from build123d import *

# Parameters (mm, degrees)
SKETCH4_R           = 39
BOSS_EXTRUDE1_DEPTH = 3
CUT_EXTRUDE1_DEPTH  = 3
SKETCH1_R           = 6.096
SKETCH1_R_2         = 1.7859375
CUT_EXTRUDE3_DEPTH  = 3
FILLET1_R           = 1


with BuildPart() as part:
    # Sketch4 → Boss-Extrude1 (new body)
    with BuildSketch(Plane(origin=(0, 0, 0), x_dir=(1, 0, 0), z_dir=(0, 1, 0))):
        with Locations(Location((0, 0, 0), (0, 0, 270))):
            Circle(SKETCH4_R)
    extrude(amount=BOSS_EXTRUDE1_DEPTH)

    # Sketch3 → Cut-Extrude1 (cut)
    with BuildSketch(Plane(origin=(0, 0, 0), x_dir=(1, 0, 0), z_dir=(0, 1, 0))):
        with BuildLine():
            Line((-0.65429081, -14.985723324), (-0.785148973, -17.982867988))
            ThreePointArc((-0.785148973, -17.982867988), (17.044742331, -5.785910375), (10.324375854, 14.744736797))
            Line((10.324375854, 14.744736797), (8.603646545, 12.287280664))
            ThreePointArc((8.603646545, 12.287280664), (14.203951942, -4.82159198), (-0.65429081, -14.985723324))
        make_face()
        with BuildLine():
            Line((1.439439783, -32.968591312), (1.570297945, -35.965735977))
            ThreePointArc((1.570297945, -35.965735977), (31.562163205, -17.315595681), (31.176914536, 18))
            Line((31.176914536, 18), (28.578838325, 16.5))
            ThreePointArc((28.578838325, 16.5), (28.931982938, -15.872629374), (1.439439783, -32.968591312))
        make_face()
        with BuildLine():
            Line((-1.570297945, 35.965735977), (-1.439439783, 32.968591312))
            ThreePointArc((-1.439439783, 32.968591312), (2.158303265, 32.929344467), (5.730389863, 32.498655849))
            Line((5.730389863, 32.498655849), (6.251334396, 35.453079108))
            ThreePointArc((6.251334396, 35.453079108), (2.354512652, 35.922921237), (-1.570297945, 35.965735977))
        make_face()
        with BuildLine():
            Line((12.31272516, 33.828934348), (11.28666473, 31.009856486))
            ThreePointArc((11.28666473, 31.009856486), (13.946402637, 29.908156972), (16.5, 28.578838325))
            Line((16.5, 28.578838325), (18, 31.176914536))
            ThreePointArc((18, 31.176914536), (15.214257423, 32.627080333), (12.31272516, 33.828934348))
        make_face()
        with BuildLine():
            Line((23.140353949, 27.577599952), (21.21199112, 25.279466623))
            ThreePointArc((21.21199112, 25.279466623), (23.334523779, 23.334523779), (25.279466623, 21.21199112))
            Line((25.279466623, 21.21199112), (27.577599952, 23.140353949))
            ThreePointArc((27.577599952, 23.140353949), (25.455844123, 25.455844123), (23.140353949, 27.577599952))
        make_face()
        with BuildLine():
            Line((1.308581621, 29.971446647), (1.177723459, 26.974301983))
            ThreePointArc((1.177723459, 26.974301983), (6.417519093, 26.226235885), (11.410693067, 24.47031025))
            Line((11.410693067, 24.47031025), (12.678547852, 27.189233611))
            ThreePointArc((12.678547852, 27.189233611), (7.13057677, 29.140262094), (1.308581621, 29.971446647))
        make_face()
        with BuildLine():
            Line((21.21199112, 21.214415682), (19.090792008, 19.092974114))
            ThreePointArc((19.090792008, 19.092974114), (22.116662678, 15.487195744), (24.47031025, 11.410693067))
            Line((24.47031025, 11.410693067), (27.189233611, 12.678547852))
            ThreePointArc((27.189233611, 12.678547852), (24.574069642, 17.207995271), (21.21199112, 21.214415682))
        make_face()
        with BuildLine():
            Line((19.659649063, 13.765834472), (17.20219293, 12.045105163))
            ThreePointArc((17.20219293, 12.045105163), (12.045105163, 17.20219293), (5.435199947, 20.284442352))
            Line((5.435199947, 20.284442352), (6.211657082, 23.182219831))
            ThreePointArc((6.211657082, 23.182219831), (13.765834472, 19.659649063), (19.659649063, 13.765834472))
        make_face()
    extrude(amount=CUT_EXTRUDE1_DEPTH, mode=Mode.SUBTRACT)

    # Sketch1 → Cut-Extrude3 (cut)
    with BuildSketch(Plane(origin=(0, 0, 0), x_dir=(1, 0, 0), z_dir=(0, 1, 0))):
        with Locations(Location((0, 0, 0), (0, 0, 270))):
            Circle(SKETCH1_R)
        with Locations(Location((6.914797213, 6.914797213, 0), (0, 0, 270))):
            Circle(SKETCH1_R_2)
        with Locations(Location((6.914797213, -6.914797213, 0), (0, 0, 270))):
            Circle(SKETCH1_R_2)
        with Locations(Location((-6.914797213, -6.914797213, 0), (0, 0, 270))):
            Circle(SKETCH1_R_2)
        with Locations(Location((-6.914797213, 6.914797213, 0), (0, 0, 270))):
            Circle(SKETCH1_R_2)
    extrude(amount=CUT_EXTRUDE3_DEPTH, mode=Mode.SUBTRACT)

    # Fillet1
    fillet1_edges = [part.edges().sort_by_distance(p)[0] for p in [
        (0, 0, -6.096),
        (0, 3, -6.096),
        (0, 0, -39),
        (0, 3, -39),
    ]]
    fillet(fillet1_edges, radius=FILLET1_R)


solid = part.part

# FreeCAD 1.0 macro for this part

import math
import FreeCAD as App
import Part
import Sketcher
Q = App.Units.Quantity


def edges_at(feature, points):
    """Names of the edges that pass closest to the given points."""
    edges = feature.Shape.Edges
    near = lambda p: min(range(len(edges)), key=lambda i: edges[i].distToShape(Part.Vertex(*p))[0])
    return sorted({f"Edge{near(p) + 1}" for p in points})

doc = App.newDocument("Part")
params = doc.addObject("Spreadsheet::Sheet", "Params")
for row, (alias, value) in enumerate([
    ("sketch1_diameter", "78 mm"),
    ("pad1_length", "3 mm"),
    ("sketch2_radius", "18 mm"),
    ("sketch2_radius2", "15 mm"),
    ("sketch2_radius3", "36 mm"),
    ("sketch2_radius4", "27 mm"),
    ("sketch2_radius5", "24 mm"),
    ("pocket1_length", "3 mm"),
    ("pocket2_length", "3 mm"),
    ("fillet_radius", "1 mm"),
], start=1):
    params.set(f"A{row}", alias)
    params.set(f"B{row}", "=" + value)
    params.setAlias(f"B{row}", alias)

body = doc.addObject("PartDesign::Body", "Body")

sketch1 = doc.addObject("Sketcher::SketchObject", "Sketch")
body.addObject(sketch1)
sketch1.AttachmentSupport = (doc.XZ_Plane, [""])
sketch1.MapMode = "FlatFace"
sketch1.addGeometry(Part.Circle(App.Vector(0, 0, 0), App.Vector(0, 0, 1), 39), False)
sketch1.addConstraint(Sketcher.Constraint("Coincident", 0, 3, -1, 1))
sketch1.addConstraint(Sketcher.Constraint("Diameter", 0, 78.0))
sketch1.setExpression("Constraints[1]", "Params.sketch1_diameter")
pad1 = doc.addObject("PartDesign::Pad", "Pad")
body.addObject(pad1)
pad1.Profile = sketch1
pad1.setExpression("Length", "Params.pad1_length")
pad1.Reversed = True

sketch2 = doc.addObject("Sketcher::SketchObject", "Sketch001")
body.addObject(sketch2)
sketch2.AttachmentSupport = (doc.XZ_Plane, [""])
sketch2.MapMode = "FlatFace"
sketch2.addGeometry(Part.LineSegment(App.Vector(-0.7, 15, 0), App.Vector(-0.8, 18, 0)), False)
sketch2.addGeometry(Part.ArcOfCircle(Part.Circle(App.Vector(0, 0, 0), App.Vector(0, 0, 1), 18), math.radians(-55), math.radians(93)), False)
sketch2.addGeometry(Part.LineSegment(App.Vector(10.3, -14.7, 0), App.Vector(8.6, -12.3, 0)), False)
sketch2.addGeometry(Part.ArcOfCircle(Part.Circle(App.Vector(0, 0, 0), App.Vector(0, 0, 1), 15), math.radians(-55), math.radians(92)), False)
sketch2.addGeometry(Part.LineSegment(App.Vector(1.4, 33, 0), App.Vector(1.6, 36, 0)), False)
sketch2.addGeometry(Part.ArcOfCircle(Part.Circle(App.Vector(0, 0, 0), App.Vector(0, 0, 1), 36), math.radians(-30), math.radians(87)), False)
sketch2.addGeometry(Part.LineSegment(App.Vector(31.2, -18, 0), App.Vector(28.6, -16.5, 0)), False)
sketch2.addGeometry(Part.ArcOfCircle(Part.Circle(App.Vector(0, 0, 0), App.Vector(0, 0, 1), 33), math.radians(-30), math.radians(87)), False)
sketch2.addGeometry(Part.LineSegment(App.Vector(-1.6, -36, 0), App.Vector(-1.4, -33, 0)), False)
sketch2.addGeometry(Part.ArcOfCircle(Part.Circle(App.Vector(0, 0, 0), App.Vector(0, 0, 1), 33), math.radians(-92.5), math.radians(-80)), False)
sketch2.addGeometry(Part.LineSegment(App.Vector(5.7, -32.5, 0), App.Vector(6.3, -35.5, 0)), False)
sketch2.addGeometry(Part.ArcOfCircle(Part.Circle(App.Vector(0, 0, 0), App.Vector(0, 0, 1), 36), math.radians(-92.5), math.radians(-80)), False)
sketch2.addGeometry(Part.LineSegment(App.Vector(12.3, -33.8, 0), App.Vector(11.3, -31, 0)), False)
sketch2.addGeometry(Part.ArcOfCircle(Part.Circle(App.Vector(0, 0, 0), App.Vector(0, 0, 1), 33), math.radians(-70), math.radians(-60)), False)
sketch2.addGeometry(Part.LineSegment(App.Vector(16.5, -28.6, 0), App.Vector(18, -31.2, 0)), False)
sketch2.addGeometry(Part.ArcOfCircle(Part.Circle(App.Vector(0, 0, 0), App.Vector(0, 0, 1), 36), math.radians(-70), math.radians(-60)), False)
sketch2.addGeometry(Part.LineSegment(App.Vector(23.1, -27.6, 0), App.Vector(21.2, -25.3, 0)), False)
sketch2.addGeometry(Part.ArcOfCircle(Part.Circle(App.Vector(0, 0, 0), App.Vector(0, 0, 1), 33), math.radians(-50), math.radians(-40)), False)
sketch2.addGeometry(Part.LineSegment(App.Vector(25.3, -21.2, 0), App.Vector(27.6, -23.1, 0)), False)
sketch2.addGeometry(Part.ArcOfCircle(Part.Circle(App.Vector(0, 0, 0), App.Vector(0, 0, 1), 36), math.radians(-50), math.radians(-40)), False)
sketch2.addGeometry(Part.LineSegment(App.Vector(1.3, -30, 0), App.Vector(1.2, -27, 0)), False)
sketch2.addGeometry(Part.ArcOfCircle(Part.Circle(App.Vector(0, 0, 0), App.Vector(0, 0, 1), 27), math.radians(-87), math.radians(-65)), False)
sketch2.addGeometry(Part.LineSegment(App.Vector(11.4, -24.5, 0), App.Vector(12.7, -27.2, 0)), False)
sketch2.addGeometry(Part.ArcOfCircle(Part.Circle(App.Vector(0, 0, 0), App.Vector(0, 0, 1), 30), math.radians(-87), math.radians(-65)), False)
sketch2.addGeometry(Part.LineSegment(App.Vector(21.2, -21.2, 0), App.Vector(19.1, -19.1, 0)), False)
sketch2.addGeometry(Part.ArcOfCircle(Part.Circle(App.Vector(0, 0, 0), App.Vector(0, 0, 1), 27), math.radians(-45), math.radians(-25)), False)
sketch2.addGeometry(Part.LineSegment(App.Vector(24.5, -11.4, 0), App.Vector(27.2, -12.7, 0)), False)
sketch2.addGeometry(Part.ArcOfCircle(Part.Circle(App.Vector(0, 0, 0), App.Vector(0, 0, 1), 30), math.radians(-45), math.radians(-25)), False)
sketch2.addGeometry(Part.LineSegment(App.Vector(17.2, -12, 0), App.Vector(19.7, -13.8, 0)), False)
sketch2.addGeometry(Part.ArcOfCircle(Part.Circle(App.Vector(0, 0, 0), App.Vector(0, 0, 1), 24), math.radians(-75), math.radians(-35)), False)
sketch2.addGeometry(Part.LineSegment(App.Vector(6.2, -23.2, 0), App.Vector(5.4, -20.3, 0)), False)
sketch2.addGeometry(Part.ArcOfCircle(Part.Circle(App.Vector(0, 0, 0), App.Vector(0, 0, 1), 21), math.radians(-75), math.radians(-35)), False)
sketch2.addConstraint(Sketcher.Constraint("Coincident", 0, 2, 1, 2))
sketch2.addConstraint(Sketcher.Constraint("Coincident", 1, 1, 2, 1))
sketch2.addConstraint(Sketcher.Constraint("Coincident", 2, 2, 3, 1))
sketch2.addConstraint(Sketcher.Constraint("Coincident", 3, 2, 0, 1))
sketch2.addConstraint(Sketcher.Constraint("Coincident", 4, 2, 5, 2))
sketch2.addConstraint(Sketcher.Constraint("Coincident", 5, 1, 6, 1))
sketch2.addConstraint(Sketcher.Constraint("Coincident", 6, 2, 7, 1))
sketch2.addConstraint(Sketcher.Constraint("Coincident", 7, 2, 4, 1))
sketch2.addConstraint(Sketcher.Constraint("Coincident", 8, 2, 9, 1))
sketch2.addConstraint(Sketcher.Constraint("Coincident", 9, 2, 10, 1))
sketch2.addConstraint(Sketcher.Constraint("Coincident", 10, 2, 11, 2))
sketch2.addConstraint(Sketcher.Constraint("Coincident", 11, 1, 8, 1))
sketch2.addConstraint(Sketcher.Constraint("Coincident", 12, 2, 13, 1))
sketch2.addConstraint(Sketcher.Constraint("Coincident", 13, 2, 14, 1))
sketch2.addConstraint(Sketcher.Constraint("Coincident", 14, 2, 15, 2))
sketch2.addConstraint(Sketcher.Constraint("Coincident", 15, 1, 12, 1))
sketch2.addConstraint(Sketcher.Constraint("Coincident", 16, 2, 17, 1))
sketch2.addConstraint(Sketcher.Constraint("Coincident", 17, 2, 18, 1))
sketch2.addConstraint(Sketcher.Constraint("Coincident", 18, 2, 19, 2))
sketch2.addConstraint(Sketcher.Constraint("Coincident", 19, 1, 16, 1))
sketch2.addConstraint(Sketcher.Constraint("Coincident", 20, 2, 21, 1))
sketch2.addConstraint(Sketcher.Constraint("Coincident", 21, 2, 22, 1))
sketch2.addConstraint(Sketcher.Constraint("Coincident", 22, 2, 23, 2))
sketch2.addConstraint(Sketcher.Constraint("Coincident", 23, 1, 20, 1))
sketch2.addConstraint(Sketcher.Constraint("Coincident", 24, 2, 25, 1))
sketch2.addConstraint(Sketcher.Constraint("Coincident", 25, 2, 26, 1))
sketch2.addConstraint(Sketcher.Constraint("Coincident", 26, 2, 27, 2))
sketch2.addConstraint(Sketcher.Constraint("Coincident", 27, 1, 24, 1))
sketch2.addConstraint(Sketcher.Constraint("Coincident", 28, 2, 29, 2))
sketch2.addConstraint(Sketcher.Constraint("Coincident", 29, 1, 30, 1))
sketch2.addConstraint(Sketcher.Constraint("Coincident", 30, 2, 31, 1))
sketch2.addConstraint(Sketcher.Constraint("Coincident", 31, 2, 28, 1))
sketch2.addConstraint(Sketcher.Constraint("Coincident", 1, 3, -1, 1))
sketch2.addConstraint(Sketcher.Constraint("Coincident", 3, 3, -1, 1))
sketch2.addConstraint(Sketcher.Constraint("Coincident", 5, 3, -1, 1))
sketch2.addConstraint(Sketcher.Constraint("Coincident", 7, 3, -1, 1))
sketch2.addConstraint(Sketcher.Constraint("Coincident", 9, 3, -1, 1))
sketch2.addConstraint(Sketcher.Constraint("Coincident", 11, 3, -1, 1))
sketch2.addConstraint(Sketcher.Constraint("Coincident", 13, 3, -1, 1))
sketch2.addConstraint(Sketcher.Constraint("Coincident", 15, 3, -1, 1))
sketch2.addConstraint(Sketcher.Constraint("Coincident", 17, 3, -1, 1))
sketch2.addConstraint(Sketcher.Constraint("Coincident", 19, 3, -1, 1))
sketch2.addConstraint(Sketcher.Constraint("Coincident", 21, 3, -1, 1))
sketch2.addConstraint(Sketcher.Constraint("Coincident", 23, 3, -1, 1))
sketch2.addConstraint(Sketcher.Constraint("Coincident", 25, 3, -1, 1))
sketch2.addConstraint(Sketcher.Constraint("Coincident", 27, 3, -1, 1))
sketch2.addConstraint(Sketcher.Constraint("Coincident", 29, 3, -1, 1))
sketch2.addConstraint(Sketcher.Constraint("Coincident", 31, 3, -1, 1))
sketch2.addConstraint(Sketcher.Constraint("Equal", 7, 9))
sketch2.addConstraint(Sketcher.Constraint("Equal", 5, 11))
sketch2.addConstraint(Sketcher.Constraint("Equal", 9, 13))
sketch2.addConstraint(Sketcher.Constraint("Equal", 11, 15))
sketch2.addConstraint(Sketcher.Constraint("Equal", 13, 17))
sketch2.addConstraint(Sketcher.Constraint("Equal", 15, 19))
sketch2.addConstraint(Sketcher.Constraint("Equal", 21, 25))
sketch2.addConstraint(Sketcher.Constraint("Equal", 23, 27))
sketch2.addConstraint(Sketcher.Constraint("Parallel", 4, 8))
sketch2.addConstraint(Sketcher.Constraint("Parallel", 0, 20))
sketch2.addConstraint(Sketcher.Constraint("Vertical", 16, 2, 27, 1))
sketch2.addConstraint(Sketcher.Constraint("Equal", 2, 4))
sketch2.addConstraint(Sketcher.Constraint("Equal", 18, 20))
sketch2.addConstraint(Sketcher.Constraint("Equal", 26, 28))
sketch2.addConstraint(Sketcher.Constraint("Radius", 1, 18.0))
sketch2.addConstraint(Sketcher.Constraint("Radius", 3, 15.0))
sketch2.addConstraint(Sketcher.Constraint("Radius", 5, 36.0))
sketch2.addConstraint(Sketcher.Constraint("Radius", 21, 27.0))
sketch2.addConstraint(Sketcher.Constraint("Radius", 29, 24.0))
sketch2.addConstraint(Sketcher.Constraint("Angle", 2, Q("125 deg")))
sketch2.addConstraint(Sketcher.Constraint("Angle", 6, Q("150 deg")))
sketch2.addConstraint(Sketcher.Constraint("Angle", 10, Q("-80 deg")))
sketch2.addConstraint(Sketcher.Constraint("Angle", 12, Q("110 deg")))
sketch2.addConstraint(Sketcher.Constraint("Angle", 14, Q("-60 deg")))
sketch2.addConstraint(Sketcher.Constraint("Angle", 16, Q("130 deg")))
sketch2.addConstraint(Sketcher.Constraint("Angle", 18, Q("-40 deg")))
sketch2.addConstraint(Sketcher.Constraint("Angle", 22, Q("-65 deg")))
sketch2.addConstraint(Sketcher.Constraint("Angle", 26, Q("-25 deg")))
sketch2.addConstraint(Sketcher.Constraint("Angle", 28, Q("-35 deg")))
sketch2.addConstraint(Sketcher.Constraint("Angle", 30, Q("105 deg")))
sketch2.addConstraint(Sketcher.Constraint("DistanceY", 5, 1, -1, 1, 18.0))
sketch2.addConstraint(Sketcher.Constraint("DistanceX", -1, 1, 14, 2, 18.0))
sketch2.addConstraint(Sketcher.Constraint("Angle", 0, Q("92.5 deg")))
sketch2.addConstraint(Sketcher.Constraint("Angle", 4, Q("87.5 deg")))
sketch2.addConstraint(Sketcher.Constraint("DistanceY", 11, 1, 1, 1, 21.220999))
sketch2.addConstraint(Sketcher.Constraint("DistanceX", -1, 1, 18, 2, 27.5776))
sketch2.addConstraint(Sketcher.Constraint("DistanceY", 19, 1, -1, 1, 27.5776))
sketch2.addConstraint(Sketcher.Constraint("DistanceY", 20, 2, -1, 1, 26.974302))
sketch2.addConstraint(Sketcher.Constraint("DistanceX", -1, 1, 30, 2, 5.4352))
sketch2.addConstraint(Sketcher.Constraint("DistanceX", 13, 3, 4, 2, 1.570298))
sketch2.addConstraint(Sketcher.Constraint("DistanceY", 10, 2, 2, 2, 23.165798))
sketch2.addConstraint(Sketcher.Constraint("DistanceY", 9, 2, 12, 2, 1.488799))
sketch2.addConstraint(Sketcher.Constraint("DistanceY", 15, 1, 22, 2, 6.639701))
sketch2.addConstraint(Sketcher.Constraint("DistanceX", 24, 2, 16, 2, 2.121199))
sketch2.addConstraint(Sketcher.Constraint("DistanceX", 21, 2, 24, 2, 7.680099))
sketch2.addConstraint(Sketcher.Constraint("DistanceY", 17, 2, 25, 2, 9.801298))
sketch2.addConstraint(Sketcher.Constraint("DistanceX", 31, 2, 24, 2, 1.888599))
sketch2.addConstraint(Sketcher.Constraint("DistanceX", 0, 2, -1, 1, 0.785149))
sketch2.setExpression("Constraints[62]", "Params.sketch2_radius")
sketch2.setExpression("Constraints[63]", "Params.sketch2_radius2")
sketch2.setExpression("Constraints[64]", "Params.sketch2_radius3")
sketch2.setExpression("Constraints[65]", "Params.sketch2_radius4")
sketch2.setExpression("Constraints[66]", "Params.sketch2_radius5")
pocket1 = doc.addObject("PartDesign::Pocket", "Pocket")
body.addObject(pocket1)
pocket1.Profile = sketch2
pocket1.setExpression("Length", "Params.pocket1_length")

sketch3 = doc.addObject("Sketcher::SketchObject", "Sketch002")
body.addObject(sketch3)
sketch3.AttachmentSupport = (doc.XZ_Plane, [""])
sketch3.MapMode = "FlatFace"
sketch3.addGeometry(Part.Circle(App.Vector(0, 0, 0), App.Vector(0, 0, 1), 6.1), False)
sketch3.addGeometry(Part.Circle(App.Vector(6.9, -6.9, 0), App.Vector(0, 0, 1), 1.8), False)
sketch3.addGeometry(Part.Circle(App.Vector(6.9, 6.9, 0), App.Vector(0, 0, 1), 1.8), False)
sketch3.addGeometry(Part.Circle(App.Vector(-6.9, 6.9, 0), App.Vector(0, 0, 1), 1.8), False)
sketch3.addGeometry(Part.Circle(App.Vector(-6.9, -6.9, 0), App.Vector(0, 0, 1), 1.8), False)
sketch3.addConstraint(Sketcher.Constraint("Coincident", 0, 3, -1, 1))
sketch3.addConstraint(Sketcher.Constraint("Equal", 1, 2))
sketch3.addConstraint(Sketcher.Constraint("Equal", 2, 3))
sketch3.addConstraint(Sketcher.Constraint("Equal", 3, 4))
sketch3.addConstraint(Sketcher.Constraint("Symmetric", 1, 3, 3, 3, -1, 1))
sketch3.addConstraint(Sketcher.Constraint("Symmetric", 2, 3, 4, 3, -1, 1))
sketch3.addConstraint(Sketcher.Constraint("Symmetric", 2, 3, 3, 3, -2))
sketch3.addConstraint(Sketcher.Constraint("Diameter", 0, 12.192))
sketch3.addConstraint(Sketcher.Constraint("Diameter", 1, 3.571875))
sketch3.addConstraint(Sketcher.Constraint("DistanceX", -1, 1, 1, 3, 6.914797))
sketch3.addConstraint(Sketcher.Constraint("DistanceY", 1, 3, -1, 1, 6.914797))
pocket2 = doc.addObject("PartDesign::Pocket", "Pocket001")
body.addObject(pocket2)
pocket2.Profile = sketch3
pocket2.setExpression("Length", "Params.pocket2_length")
doc.recompute()

fillet = doc.addObject("PartDesign::Fillet", "Fillet")
body.addObject(fillet)
fillet.Base = (pocket2, edges_at(pocket2, [
    (0, 0, -6.096),
    (0, 3, -6.096),
    (0, 0, -39),
    (0, 3, -39),
]))
fillet.setExpression("Radius", "Params.fillet_radius")

doc.recompute()
